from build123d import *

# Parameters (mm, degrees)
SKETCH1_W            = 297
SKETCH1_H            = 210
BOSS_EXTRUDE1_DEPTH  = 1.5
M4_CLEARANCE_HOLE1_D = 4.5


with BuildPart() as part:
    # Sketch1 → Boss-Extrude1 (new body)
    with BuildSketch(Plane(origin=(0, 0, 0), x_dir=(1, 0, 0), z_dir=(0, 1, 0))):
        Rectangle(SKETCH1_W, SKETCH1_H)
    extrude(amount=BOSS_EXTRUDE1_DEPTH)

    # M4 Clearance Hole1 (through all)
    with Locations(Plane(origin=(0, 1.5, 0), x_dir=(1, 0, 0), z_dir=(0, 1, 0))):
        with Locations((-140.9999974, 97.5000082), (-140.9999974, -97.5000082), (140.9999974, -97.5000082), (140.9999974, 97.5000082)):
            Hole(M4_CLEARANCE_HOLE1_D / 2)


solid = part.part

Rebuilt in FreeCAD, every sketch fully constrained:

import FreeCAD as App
import Part
import Sketcher
from FreeCAD import Vector

doc = App.newDocument("Part")
params = doc.addObject("Spreadsheet::Sheet", "Params")
for row, (alias, value) in enumerate([
    ("sketch1_width", "297 mm"),
    ("sketch1_height", "210 mm"),
    ("pad1_length", "1.5 mm"),
    ("sketch2_diameter", "4.5 mm"),
    ("hole_diameter", "4.5 mm"),
], start=1):
    params.set(f"A{row}", alias)
    params.set(f"B{row}", "=" + value)
    params.setAlias(f"B{row}", alias)

body = doc.addObject("PartDesign::Body", "Body")

# Sketch on XZ plane
sketch1 = doc.addObject("Sketcher::SketchObject", "Sketch")
body.addObject(sketch1)
sketch1.AttachmentSupport = (doc.XZ_Plane, [""])
sketch1.MapMode = "FlatFace"
sketch1.addGeometry(Part.LineSegment(Vector(-148, -105, 0), Vector(-148, 105, 0)), False)
sketch1.addGeometry(Part.LineSegment(Vector(-148, 105, 0), Vector(148, 105, 0)), False)
sketch1.addGeometry(Part.LineSegment(Vector(148, 105, 0), Vector(148, -105, 0)), False)
sketch1.addGeometry(Part.LineSegment(Vector(148, -105, 0), Vector(-148, -105, 0)), False)
sketch1.addConstraint(Sketcher.Constraint("Coincident", 0, 2, 1, 1))
sketch1.addConstraint(Sketcher.Constraint("Coincident", 1, 2, 2, 1))
sketch1.addConstraint(Sketcher.Constraint("Coincident", 2, 2, 3, 1))
sketch1.addConstraint(Sketcher.Constraint("Coincident", 3, 2, 0, 1))
sketch1.addConstraint(Sketcher.Constraint("Vertical", 0))
sketch1.addConstraint(Sketcher.Constraint("Horizontal", 1))
sketch1.addConstraint(Sketcher.Constraint("Vertical", 2))
sketch1.addConstraint(Sketcher.Constraint("Horizontal", 3))
sketch1.addConstraint(Sketcher.Constraint("Symmetric", 0, 2, 2, 2, -1, 1))
sketch1.addConstraint(Sketcher.Constraint("DistanceX", 1, 1, 1, 2, 297.0))
sketch1.addConstraint(Sketcher.Constraint("DistanceY", 0, 1, 0, 2, 210.0))
sketch1.setExpression("Constraints[9]", "Params.sketch1_width")
sketch1.setExpression("Constraints[10]", "Params.sketch1_height")
pad1 = doc.addObject("PartDesign::Pad", "Pad")
body.addObject(pad1)
pad1.Profile = sketch1
pad1.setExpression("Length", "Params.pad1_length")
pad1.Reversed = True

# Sketch on XZ plane
sketch2 = doc.addObject("Sketcher::SketchObject", "Sketch001")
body.addObject(sketch2)
sketch2.AttachmentSupport = (doc.XZ_Plane, [""])
sketch2.MapMode = "FlatFace"
sketch2.AttachmentOffset = App.Placement(Vector(0, 0, -1.5), App.Rotation())
sketch2.addGeometry(Part.Circle(Vector(-141, -97.5, 0), Vector(0, 0, 1), 2.2), False)
sketch2.addGeometry(Part.Circle(Vector(-141, 97.5, 0), Vector(0, 0, 1), 2.2), False)
sketch2.addGeometry(Part.Circle(Vector(141, 97.5, 0), Vector(0, 0, 1), 2.2), False)
sketch2.addGeometry(Part.Circle(Vector(141, -97.5, 0), Vector(0, 0, 1), 2.2), False)
sketch2.addConstraint(Sketcher.Constraint("Equal", 0, 1))
sketch2.addConstraint(Sketcher.Constraint("Equal", 1, 2))
sketch2.addConstraint(Sketcher.Constraint("Equal", 2, 3))
sketch2.addConstraint(Sketcher.Constraint("Symmetric", 0, 3, 2, 3, -1, 1))
sketch2.addConstraint(Sketcher.Constraint("Symmetric", 1, 3, 3, 3, -1, 1))
sketch2.addConstraint(Sketcher.Constraint("Symmetric", 1, 3, 2, 3, -2))
sketch2.addConstraint(Sketcher.Constraint("Diameter", 0, 4.5))
sketch2.addConstraint(Sketcher.Constraint("DistanceY", 0, 3, -1, 1, 97.500008))
sketch2.addConstraint(Sketcher.Constraint("DistanceX", 0, 3, -1, 1, 140.999997))
sketch2.setExpression("Constraints[6]", "Params.sketch2_diameter")
doc.recompute()
hole = doc.addObject("PartDesign::Hole", "Hole")
body.addObject(hole)
hole.Profile = sketch2
hole.ThreadType = "None"
hole.setExpression("Diameter", "Params.hole_diameter")
hole.DepthType = "ThroughAll"
hole.Reversed = True

doc.recompute()
